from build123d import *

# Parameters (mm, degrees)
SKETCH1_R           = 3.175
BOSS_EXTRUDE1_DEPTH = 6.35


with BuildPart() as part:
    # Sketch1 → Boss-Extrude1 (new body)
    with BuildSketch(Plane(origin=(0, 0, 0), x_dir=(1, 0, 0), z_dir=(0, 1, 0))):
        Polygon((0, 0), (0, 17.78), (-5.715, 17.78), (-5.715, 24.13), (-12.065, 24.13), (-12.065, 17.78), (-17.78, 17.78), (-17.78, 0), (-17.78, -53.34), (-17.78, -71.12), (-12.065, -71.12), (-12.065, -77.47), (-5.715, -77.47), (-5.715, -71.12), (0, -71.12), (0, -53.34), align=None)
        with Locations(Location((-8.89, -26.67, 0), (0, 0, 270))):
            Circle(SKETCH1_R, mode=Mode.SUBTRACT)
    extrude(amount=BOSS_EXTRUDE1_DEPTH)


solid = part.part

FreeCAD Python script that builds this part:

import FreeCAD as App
import Part
import Sketcher
from FreeCAD import Vector
Q = App.Units.Quantity


def add_polygon(sketch, points):
    """Adds a closed chain of lines whose ends are joined by coincident constraints."""
    first, n = sketch.GeometryCount, len(points)
    for a, b in zip(points, points[1:] + points[:1]):
        sketch.addGeometry(Part.LineSegment(App.Vector(*a, 0), App.Vector(*b, 0)), False)
    for i in range(n):
        sketch.addConstraint(Sketcher.Constraint("Coincident", first + i, 2, first + (i + 1) % n, 1))

doc = App.newDocument("Part")
params = doc.addObject("Spreadsheet::Sheet", "Params")
for row, (alias, value) in enumerate([
    ("sketch1_diameter", "0.25 in"),
    ("sketch1_height", "3.5 in"),
    ("pad1_length", "0.25 in"),
], start=1):
    params.set(f"A{row}", alias)
    params.set(f"B{row}", "=" + value)
    params.setAlias(f"B{row}", alias)

body = doc.addObject("PartDesign::Body", "Body")

sketch1 = body.newObject("Sketcher::SketchObject", "Sketch")
sketch1.AttachmentSupport = (doc.getObject("XZ_Plane"), [""])
sketch1.MapMode = "FlatFace"
add_polygon(sketch1, [(0, -17.8), (-5.7, -17.8), (-5.7, -24.1), (-12.1, -24.1), (-12.1, -17.8), (-17.8, -17.8), (-17.8, 71.1), (-12.1, 71.1), (-12.1, 77.5), (-5.7, 77.5), (-5.7, 71.1), (0, 71.1)])
sketch1.addGeometry(Part.Circle(Vector(-8.9, 26.7, 0), Vector(0, 0, 1), 3.2), False)
sketch1.addConstraint([
    Sketcher.Constraint("Horizontal", 0),
    Sketcher.Constraint("Vertical", 1),
    Sketcher.Constraint("Horizontal", 2),
    Sketcher.Constraint("Vertical", 3),
    Sketcher.Constraint("Horizontal", 4),
    Sketcher.Constraint("Vertical", 5),
    Sketcher.Constraint("Horizontal", 6),
    Sketcher.Constraint("Vertical", 7),
    Sketcher.Constraint("Horizontal", 8),
    Sketcher.Constraint("Vertical", 9),
    Sketcher.Constraint("Horizontal", 10),
    Sketcher.Constraint("Vertical", 11),
    Sketcher.Constraint("PointOnObject", 10, 2, -2),
    Sketcher.Constraint("Horizontal", 0, 2, 3, 2),
    Sketcher.Constraint("Horizontal", 6, 2, 9, 2),
    Sketcher.Constraint("Vertical", 3, 2, 6, 2),
    Sketcher.Constraint("Vertical", 1, 2, 8, 2),
    Sketcher.Constraint("Equal", 0, 4),
    Sketcher.Constraint("Equal", 8, 1),
    Sketcher.Constraint("Equal", 3, 7),
    Sketcher.Constraint("Diameter", 12, Q("0.25 in")),
    Sketcher.Constraint("DistanceY", 5, 1, 5, 2, Q("3.5 in")),
    Sketcher.Constraint("DistanceY", 1, 2, 12, 3, Q("2 in")),
    Sketcher.Constraint("DistanceY", 12, 3, 7, 2, Q("2 in")),
    Sketcher.Constraint("DistanceY", 0, 2, -1, 1, Q("0.7 in")),
    Sketcher.Constraint("DistanceX", 4, 2, -1, 1, Q("0.7 in")),
    Sketcher.Constraint("DistanceX", 12, 3, -1, 1, Q("0.35 in")),
])
sketch1.setExpression("Constraints[32]", "Params.sketch1_diameter")
sketch1.setExpression("Constraints[33]", "Params.sketch1_height")
pad1 = body.newObject("PartDesign::Pad", "Pad")
pad1.Profile = sketch1
pad1.setExpression("Length", "Params.pad1_length")
pad1.Reversed = True

doc.recompute()
